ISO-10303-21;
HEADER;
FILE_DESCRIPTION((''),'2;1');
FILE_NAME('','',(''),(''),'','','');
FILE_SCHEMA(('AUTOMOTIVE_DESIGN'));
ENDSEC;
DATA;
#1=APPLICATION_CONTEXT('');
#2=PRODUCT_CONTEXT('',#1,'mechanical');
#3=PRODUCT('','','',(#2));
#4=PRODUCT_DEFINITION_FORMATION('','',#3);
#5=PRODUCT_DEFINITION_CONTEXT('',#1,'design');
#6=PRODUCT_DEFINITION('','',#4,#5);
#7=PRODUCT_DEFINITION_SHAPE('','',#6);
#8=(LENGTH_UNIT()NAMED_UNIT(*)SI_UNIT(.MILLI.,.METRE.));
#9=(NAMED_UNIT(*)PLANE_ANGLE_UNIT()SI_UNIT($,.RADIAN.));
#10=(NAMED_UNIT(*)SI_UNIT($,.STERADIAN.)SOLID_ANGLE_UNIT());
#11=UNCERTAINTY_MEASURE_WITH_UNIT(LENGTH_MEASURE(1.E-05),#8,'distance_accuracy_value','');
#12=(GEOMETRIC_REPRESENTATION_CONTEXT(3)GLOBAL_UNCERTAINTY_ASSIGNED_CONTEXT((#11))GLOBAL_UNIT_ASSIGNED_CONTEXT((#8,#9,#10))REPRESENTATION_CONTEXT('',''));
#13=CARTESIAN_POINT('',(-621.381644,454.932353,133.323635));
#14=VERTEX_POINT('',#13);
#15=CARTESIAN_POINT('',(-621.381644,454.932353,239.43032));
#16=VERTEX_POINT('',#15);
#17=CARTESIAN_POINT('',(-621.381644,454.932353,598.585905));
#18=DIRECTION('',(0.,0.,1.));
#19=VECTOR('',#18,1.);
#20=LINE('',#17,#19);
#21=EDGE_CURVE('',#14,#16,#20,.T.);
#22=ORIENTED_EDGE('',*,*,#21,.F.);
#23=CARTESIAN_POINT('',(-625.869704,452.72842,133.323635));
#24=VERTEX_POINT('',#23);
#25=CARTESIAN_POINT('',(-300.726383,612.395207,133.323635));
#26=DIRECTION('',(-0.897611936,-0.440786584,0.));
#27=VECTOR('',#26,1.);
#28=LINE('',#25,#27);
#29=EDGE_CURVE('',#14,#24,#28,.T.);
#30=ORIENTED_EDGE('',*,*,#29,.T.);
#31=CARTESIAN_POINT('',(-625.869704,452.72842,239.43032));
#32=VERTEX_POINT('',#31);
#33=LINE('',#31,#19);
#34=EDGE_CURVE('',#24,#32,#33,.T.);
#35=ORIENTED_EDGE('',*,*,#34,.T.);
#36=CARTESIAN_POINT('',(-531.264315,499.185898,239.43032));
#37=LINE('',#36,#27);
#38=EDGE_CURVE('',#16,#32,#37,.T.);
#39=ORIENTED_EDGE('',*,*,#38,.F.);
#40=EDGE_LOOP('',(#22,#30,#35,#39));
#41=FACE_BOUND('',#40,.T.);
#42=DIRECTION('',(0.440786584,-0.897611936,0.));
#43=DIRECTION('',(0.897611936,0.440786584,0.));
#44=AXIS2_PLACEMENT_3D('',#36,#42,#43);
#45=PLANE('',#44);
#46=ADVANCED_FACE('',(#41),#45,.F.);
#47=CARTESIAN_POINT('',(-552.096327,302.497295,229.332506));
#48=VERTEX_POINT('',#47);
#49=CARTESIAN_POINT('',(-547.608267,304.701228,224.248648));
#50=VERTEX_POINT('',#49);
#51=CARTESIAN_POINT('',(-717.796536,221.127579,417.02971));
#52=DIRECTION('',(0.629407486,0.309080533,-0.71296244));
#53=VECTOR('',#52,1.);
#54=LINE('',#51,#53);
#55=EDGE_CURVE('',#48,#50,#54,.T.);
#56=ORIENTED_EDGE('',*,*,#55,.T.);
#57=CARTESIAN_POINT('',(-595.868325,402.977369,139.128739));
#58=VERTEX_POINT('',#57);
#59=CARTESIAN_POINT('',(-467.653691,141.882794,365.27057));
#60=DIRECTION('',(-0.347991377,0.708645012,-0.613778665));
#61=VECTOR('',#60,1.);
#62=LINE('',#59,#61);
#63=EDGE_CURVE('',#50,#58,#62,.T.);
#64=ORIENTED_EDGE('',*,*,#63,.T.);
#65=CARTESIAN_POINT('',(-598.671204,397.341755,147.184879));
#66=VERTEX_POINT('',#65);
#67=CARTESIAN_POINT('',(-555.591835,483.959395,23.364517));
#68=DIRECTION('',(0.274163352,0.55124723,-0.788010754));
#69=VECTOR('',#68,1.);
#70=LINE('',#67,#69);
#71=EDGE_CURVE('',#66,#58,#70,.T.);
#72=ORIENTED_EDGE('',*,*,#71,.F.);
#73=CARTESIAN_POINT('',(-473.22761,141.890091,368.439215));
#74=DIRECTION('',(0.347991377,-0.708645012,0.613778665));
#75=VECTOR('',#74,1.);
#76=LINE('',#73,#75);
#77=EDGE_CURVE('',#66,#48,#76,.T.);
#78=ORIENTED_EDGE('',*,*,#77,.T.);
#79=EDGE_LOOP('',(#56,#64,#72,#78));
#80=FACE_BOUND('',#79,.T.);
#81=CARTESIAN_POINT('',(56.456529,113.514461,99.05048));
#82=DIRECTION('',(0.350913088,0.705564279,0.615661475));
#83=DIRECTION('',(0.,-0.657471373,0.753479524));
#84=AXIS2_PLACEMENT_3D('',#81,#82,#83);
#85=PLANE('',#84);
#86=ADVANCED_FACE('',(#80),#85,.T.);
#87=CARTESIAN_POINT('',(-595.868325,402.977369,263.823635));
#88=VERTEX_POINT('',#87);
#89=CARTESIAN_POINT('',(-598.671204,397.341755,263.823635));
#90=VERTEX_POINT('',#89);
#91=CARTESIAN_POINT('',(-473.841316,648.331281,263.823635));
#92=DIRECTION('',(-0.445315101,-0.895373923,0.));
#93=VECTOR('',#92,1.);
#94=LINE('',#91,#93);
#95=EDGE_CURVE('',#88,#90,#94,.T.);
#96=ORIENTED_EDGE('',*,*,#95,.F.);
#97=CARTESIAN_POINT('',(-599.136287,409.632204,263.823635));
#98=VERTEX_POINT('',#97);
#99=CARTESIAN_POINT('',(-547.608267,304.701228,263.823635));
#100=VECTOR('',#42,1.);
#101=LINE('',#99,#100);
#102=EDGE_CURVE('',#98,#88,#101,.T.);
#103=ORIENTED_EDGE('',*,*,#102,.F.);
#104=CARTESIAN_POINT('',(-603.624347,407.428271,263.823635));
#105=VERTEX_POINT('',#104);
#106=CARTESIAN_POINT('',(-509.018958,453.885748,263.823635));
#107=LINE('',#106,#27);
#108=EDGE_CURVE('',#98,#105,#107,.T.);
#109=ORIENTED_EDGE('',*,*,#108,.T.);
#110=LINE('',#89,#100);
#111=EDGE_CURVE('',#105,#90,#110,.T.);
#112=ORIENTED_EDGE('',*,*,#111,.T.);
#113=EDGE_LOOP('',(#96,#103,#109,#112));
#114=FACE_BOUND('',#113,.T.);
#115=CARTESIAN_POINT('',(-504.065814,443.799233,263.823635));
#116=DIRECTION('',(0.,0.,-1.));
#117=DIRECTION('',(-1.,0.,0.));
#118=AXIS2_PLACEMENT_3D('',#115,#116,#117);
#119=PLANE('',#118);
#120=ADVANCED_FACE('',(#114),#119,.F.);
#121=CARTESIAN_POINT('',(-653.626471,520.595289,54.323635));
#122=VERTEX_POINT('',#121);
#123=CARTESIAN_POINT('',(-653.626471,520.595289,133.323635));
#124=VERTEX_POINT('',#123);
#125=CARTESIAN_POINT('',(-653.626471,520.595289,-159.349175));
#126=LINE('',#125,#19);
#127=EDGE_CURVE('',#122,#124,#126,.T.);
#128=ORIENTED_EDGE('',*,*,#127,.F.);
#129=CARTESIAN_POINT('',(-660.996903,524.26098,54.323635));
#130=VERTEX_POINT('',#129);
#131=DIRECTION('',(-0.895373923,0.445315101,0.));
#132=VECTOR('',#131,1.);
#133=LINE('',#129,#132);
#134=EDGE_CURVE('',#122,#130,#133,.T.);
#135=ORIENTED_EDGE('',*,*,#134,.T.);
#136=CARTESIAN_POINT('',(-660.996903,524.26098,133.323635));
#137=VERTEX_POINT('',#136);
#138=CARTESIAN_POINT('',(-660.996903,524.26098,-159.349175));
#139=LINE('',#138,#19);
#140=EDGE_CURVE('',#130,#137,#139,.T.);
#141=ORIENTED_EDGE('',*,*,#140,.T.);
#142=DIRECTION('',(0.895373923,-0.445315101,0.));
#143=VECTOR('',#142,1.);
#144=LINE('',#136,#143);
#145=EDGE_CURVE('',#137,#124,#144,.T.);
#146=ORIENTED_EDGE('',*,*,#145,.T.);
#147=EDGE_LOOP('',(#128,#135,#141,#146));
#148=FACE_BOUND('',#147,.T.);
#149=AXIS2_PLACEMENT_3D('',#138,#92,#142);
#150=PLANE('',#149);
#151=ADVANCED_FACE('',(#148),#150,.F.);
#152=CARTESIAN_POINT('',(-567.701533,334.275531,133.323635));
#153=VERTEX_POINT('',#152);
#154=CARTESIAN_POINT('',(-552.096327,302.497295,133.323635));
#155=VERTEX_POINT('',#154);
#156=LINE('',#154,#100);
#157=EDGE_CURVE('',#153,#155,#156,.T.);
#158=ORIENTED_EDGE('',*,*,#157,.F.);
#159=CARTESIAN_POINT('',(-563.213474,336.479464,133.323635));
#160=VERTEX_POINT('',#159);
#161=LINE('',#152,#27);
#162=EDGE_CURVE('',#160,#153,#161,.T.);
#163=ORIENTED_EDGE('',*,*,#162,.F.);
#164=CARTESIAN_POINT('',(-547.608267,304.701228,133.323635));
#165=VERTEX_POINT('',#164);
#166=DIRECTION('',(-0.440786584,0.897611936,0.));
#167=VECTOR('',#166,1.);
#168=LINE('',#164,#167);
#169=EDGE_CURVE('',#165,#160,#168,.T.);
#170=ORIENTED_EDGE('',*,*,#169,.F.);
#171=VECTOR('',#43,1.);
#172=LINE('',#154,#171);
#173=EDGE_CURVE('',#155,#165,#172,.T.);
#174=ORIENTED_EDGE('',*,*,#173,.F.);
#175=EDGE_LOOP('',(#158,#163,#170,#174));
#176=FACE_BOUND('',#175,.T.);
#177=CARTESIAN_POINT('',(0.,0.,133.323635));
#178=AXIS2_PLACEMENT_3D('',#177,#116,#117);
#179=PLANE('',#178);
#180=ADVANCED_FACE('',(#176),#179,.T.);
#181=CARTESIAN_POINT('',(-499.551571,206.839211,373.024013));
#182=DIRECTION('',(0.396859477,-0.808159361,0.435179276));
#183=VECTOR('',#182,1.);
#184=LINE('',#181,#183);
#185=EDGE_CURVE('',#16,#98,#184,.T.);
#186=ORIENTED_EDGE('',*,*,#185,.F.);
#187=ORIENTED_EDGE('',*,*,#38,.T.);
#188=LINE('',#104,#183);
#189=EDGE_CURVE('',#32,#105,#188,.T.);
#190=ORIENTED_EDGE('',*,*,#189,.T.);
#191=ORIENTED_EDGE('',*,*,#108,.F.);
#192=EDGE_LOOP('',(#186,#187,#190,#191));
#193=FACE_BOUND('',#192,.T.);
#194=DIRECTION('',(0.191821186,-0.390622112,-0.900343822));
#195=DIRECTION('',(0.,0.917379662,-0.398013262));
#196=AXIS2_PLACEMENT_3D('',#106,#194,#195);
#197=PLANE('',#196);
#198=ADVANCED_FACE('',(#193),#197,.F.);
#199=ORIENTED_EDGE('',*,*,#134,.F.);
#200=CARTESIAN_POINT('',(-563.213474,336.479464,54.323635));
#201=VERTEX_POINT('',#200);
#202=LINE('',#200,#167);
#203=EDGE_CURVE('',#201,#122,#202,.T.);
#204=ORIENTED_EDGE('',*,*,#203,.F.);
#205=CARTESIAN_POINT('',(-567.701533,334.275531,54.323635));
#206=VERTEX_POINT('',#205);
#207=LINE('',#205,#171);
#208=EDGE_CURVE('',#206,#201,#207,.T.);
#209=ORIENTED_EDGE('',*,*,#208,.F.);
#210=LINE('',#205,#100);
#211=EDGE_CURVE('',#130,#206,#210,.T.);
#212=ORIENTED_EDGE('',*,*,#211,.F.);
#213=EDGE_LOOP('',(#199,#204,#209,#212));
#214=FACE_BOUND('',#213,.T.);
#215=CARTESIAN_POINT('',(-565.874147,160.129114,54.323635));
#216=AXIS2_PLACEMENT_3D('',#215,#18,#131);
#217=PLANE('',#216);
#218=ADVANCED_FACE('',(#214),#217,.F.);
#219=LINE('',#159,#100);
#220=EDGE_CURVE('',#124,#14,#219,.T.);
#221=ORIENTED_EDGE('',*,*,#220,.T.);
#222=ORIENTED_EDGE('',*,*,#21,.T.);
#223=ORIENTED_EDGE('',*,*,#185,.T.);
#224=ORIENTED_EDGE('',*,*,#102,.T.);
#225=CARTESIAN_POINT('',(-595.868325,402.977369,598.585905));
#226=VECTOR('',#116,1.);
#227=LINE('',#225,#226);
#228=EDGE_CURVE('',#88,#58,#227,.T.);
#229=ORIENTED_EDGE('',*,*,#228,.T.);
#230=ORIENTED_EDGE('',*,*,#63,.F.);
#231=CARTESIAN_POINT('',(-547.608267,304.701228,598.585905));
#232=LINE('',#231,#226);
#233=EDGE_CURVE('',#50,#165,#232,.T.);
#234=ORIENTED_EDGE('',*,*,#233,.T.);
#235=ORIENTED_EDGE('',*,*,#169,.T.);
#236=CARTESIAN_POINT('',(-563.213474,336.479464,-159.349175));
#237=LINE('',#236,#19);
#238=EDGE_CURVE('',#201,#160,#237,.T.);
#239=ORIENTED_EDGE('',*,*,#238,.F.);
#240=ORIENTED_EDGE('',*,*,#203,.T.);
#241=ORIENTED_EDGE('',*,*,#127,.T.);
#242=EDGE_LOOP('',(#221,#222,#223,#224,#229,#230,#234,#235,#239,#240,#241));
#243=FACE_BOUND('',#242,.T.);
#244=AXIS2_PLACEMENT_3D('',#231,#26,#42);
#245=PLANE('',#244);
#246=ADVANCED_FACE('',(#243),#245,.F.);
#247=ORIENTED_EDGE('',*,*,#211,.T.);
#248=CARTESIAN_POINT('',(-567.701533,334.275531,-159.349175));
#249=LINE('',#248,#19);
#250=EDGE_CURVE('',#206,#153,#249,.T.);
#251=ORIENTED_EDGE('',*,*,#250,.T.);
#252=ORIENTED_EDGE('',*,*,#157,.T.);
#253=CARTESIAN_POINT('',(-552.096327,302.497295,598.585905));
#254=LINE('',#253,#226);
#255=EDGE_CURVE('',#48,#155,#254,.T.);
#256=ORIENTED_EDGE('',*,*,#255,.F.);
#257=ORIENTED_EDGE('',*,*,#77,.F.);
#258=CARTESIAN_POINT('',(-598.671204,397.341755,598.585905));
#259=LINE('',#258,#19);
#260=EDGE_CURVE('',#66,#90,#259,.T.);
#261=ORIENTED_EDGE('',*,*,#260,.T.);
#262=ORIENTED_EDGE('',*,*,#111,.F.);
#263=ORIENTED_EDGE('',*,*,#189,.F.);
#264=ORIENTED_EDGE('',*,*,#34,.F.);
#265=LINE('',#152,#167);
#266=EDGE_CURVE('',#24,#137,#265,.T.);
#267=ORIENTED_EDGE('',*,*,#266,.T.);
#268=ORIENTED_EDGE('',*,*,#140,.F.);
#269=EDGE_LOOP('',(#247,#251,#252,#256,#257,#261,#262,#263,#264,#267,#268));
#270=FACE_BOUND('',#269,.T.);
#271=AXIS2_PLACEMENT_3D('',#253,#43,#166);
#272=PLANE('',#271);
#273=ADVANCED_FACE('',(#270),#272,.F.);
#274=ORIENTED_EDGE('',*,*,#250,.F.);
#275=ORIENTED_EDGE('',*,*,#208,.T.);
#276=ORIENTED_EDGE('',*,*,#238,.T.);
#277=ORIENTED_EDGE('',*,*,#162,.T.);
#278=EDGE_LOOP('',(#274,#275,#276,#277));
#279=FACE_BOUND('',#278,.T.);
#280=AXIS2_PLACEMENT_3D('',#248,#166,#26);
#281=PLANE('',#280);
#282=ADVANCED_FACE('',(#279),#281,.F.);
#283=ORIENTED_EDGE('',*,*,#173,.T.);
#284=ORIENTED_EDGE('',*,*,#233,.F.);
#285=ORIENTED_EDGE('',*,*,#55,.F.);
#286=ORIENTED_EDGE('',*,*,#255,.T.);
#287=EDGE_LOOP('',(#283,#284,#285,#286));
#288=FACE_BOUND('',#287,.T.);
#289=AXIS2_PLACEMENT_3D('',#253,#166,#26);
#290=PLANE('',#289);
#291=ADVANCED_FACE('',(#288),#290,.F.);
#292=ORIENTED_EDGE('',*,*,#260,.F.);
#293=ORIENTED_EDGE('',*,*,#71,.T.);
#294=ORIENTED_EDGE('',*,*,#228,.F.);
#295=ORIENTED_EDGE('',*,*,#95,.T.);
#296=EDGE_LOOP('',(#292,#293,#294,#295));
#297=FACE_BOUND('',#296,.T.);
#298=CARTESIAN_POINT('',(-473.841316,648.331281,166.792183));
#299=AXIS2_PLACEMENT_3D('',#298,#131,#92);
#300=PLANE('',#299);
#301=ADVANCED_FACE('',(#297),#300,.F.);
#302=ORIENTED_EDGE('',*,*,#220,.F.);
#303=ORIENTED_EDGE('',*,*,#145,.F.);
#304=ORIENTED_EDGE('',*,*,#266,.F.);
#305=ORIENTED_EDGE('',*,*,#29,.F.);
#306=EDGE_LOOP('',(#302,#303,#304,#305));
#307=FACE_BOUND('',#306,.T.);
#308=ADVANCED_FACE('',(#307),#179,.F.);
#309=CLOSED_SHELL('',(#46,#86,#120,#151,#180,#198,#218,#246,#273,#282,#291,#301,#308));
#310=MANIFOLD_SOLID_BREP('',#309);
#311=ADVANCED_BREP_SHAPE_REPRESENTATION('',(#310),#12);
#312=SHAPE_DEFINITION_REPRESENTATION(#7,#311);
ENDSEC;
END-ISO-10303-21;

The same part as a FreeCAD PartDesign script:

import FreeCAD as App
import Part
import Sketcher

V = App.Vector


def add_polygon(sketch, points):
    """Adds a closed chain of lines whose ends are joined by coincident constraints."""
    first, n = sketch.GeometryCount, len(points)
    for a, b in zip(points, points[1:] + points[:1]):
        sketch.addGeometry(Part.LineSegment(App.Vector(*a, 0), App.Vector(*b, 0)), False)
    for i in range(n):
        sketch.addConstraint(Sketcher.Constraint("Coincident", first + i, 2, first + (i + 1) % n, 1))

doc = App.newDocument("Part")
body = doc.addObject("PartDesign::Body", "Body")

sketch1 = body.newObject("Sketcher::SketchObject", "Sketch")
sketch1.AttachmentSupport = (doc.getObject("XY_Plane"), [""])
sketch1.MapMode = "FlatFace"
sketch1.AttachmentOffset = App.Placement(V(0, 0, 133.323635), App.Rotation())
add_polygon(sketch1, [(-552.096327, 302.497295), (-547.608267, 304.701228), (-659.457002, 532.468504), (-662.25988, 526.83289)])
sketch1.addConstraint([
    Sketcher.Constraint("Perpendicular", 0, 1),
    Sketcher.Constraint("Parallel", 1, 3),
    Sketcher.Constraint("Distance", 0, 5.0),
    Sketcher.Constraint("DistanceX", 1, 2, -1, 1, 659.457002),
    Sketcher.Constraint("DistanceY", -1, 1, 0, 2, 304.701228),
    Sketcher.Constraint("DistanceX", 2, 2, -1, 1, 662.25988),
    Sketcher.Constraint("DistanceY", -1, 1, 2, 2, 526.83289),
    Sketcher.Constraint("DistanceX", 3, 2, 0, 2, 4.48806),
])
pad1 = body.newObject("PartDesign::Pad", "Pad")
pad1.Profile = sketch1
pad1.Length = 208.295834

sketch2 = body.newObject("Sketcher::SketchObject", "Sketch001")
sketch2.Placement = App.Placement(V(56.456529, 113.514461, 99.05048), App.Rotation(V(-0.935748975, 0.239556806, 0.258817295), V(-0.035126342, 0.66692697, -0.744294669), V(-0.350913088, -0.705564279, -0.615661475), "ZXY"))
add_polygon(sketch2, [(642, 325), (521, 263), (690, -225), (811, -163)])
sketch2.addConstraint([
    Sketcher.Constraint("Parallel", 0, 2),
    Sketcher.Constraint("Parallel", 1, 3),
    Sketcher.Constraint("DistanceX", -1, 1, 3, 2, 641.877398),
    Sketcher.Constraint("Distance", 1, 516.093581),
    Sketcher.Constraint("DistanceY", -1, 1, 0, 2, 262.718129),
    Sketcher.Constraint("DistanceX", 0, 2, 1, 2, 169.507769),
    Sketcher.Constraint("DistanceY", 1, 2, 3, 2, 549.635779),
    Sketcher.Constraint("Distance", 0, 136.313917),
])
pocket1 = body.newObject("PartDesign::Pocket", "Pocket")
pocket1.Profile = sketch2
pocket1.Type = "ThroughAll"

sketch3 = body.newObject("Sketcher::SketchObject", "Sketch002")
sketch3.Placement = App.Placement(V(-325.143321, -159.666787, 0), App.Rotation(V(0, 0, 1), V(-0.440786584, 0.897611936, 0), V(-0.897611936, -0.440786584, 0), "ZXY"))
add_polygon(sketch3, [(264, 632), (264, 621), (342, 621), (342, 769), (133, 769), (133, 682), (239, 682)])
sketch3.addConstraint([
    Sketcher.Constraint("Vertical", 0),
    Sketcher.Constraint("Horizontal", 1),
    Sketcher.Constraint("Vertical", 2),
    Sketcher.Constraint("Horizontal", 3),
    Sketcher.Constraint("Vertical", 4),
    Sketcher.Constraint("Horizontal", 5),
    Sketcher.Constraint("DistanceX", 3, 2, 0, 2, 130.5),
    Sketcher.Constraint("DistanceY", 4, 2, 4, 1, 86.380481),
    Sketcher.Constraint("DistanceX", 1, 1, 1, 2, 77.795834),
    Sketcher.Constraint("DistanceX", 5, 1, 5, 2, 106.106685),
    Sketcher.Constraint("DistanceY", 0, 2, 0, 1, 11.237056),
    Sketcher.Constraint("DistanceY", 2, 1, 2, 2, 148.084947),
    Sketcher.Constraint("DistanceX", -1, 1, 1, 2, 341.619469),
    Sketcher.Constraint("DistanceY", -1, 1, 0, 2, 620.544937),
])
pocket2 = body.newObject("PartDesign::Pocket", "Pocket001")
pocket2.Profile = sketch3
pocket2.Type = "ThroughAll"

sketch4 = body.newObject("Sketcher::SketchObject", "Sketch003")
sketch4.AttachmentSupport = (doc.getObject("XY_Plane"), [""])
sketch4.MapMode = "FlatFace"
sketch4.AttachmentOffset = App.Placement(V(0, 0, 133.323635), App.Rotation())
add_polygon(sketch4, [(-563, 336), (-568, 334), (-661, 524), (-654, 521)])
sketch4.addConstraint([
    Sketcher.Constraint("Perpendicular", 0, 1),
    Sketcher.Constraint("Parallel", 1, 3),
    Sketcher.Constraint("Distance", 0, 5.0),
    Sketcher.Constraint("Distance", 3, 205.117398),
    Sketcher.Constraint("Distance", 2, 8.23168),
    Sketcher.Constraint("DistanceY", -1, 1, 0, 2, 334.275531),
    Sketcher.Constraint("DistanceY", -1, 1, 1, 2, 524.26098),
    Sketcher.Constraint("DistanceX", 2, 2, -1, 1, 653.626471),
])
pad2 = body.newObject("PartDesign::Pad", "Pad001")
pad2.Profile = sketch4
pad2.Length = 79
pad2.Reversed = True

doc.recompute()
